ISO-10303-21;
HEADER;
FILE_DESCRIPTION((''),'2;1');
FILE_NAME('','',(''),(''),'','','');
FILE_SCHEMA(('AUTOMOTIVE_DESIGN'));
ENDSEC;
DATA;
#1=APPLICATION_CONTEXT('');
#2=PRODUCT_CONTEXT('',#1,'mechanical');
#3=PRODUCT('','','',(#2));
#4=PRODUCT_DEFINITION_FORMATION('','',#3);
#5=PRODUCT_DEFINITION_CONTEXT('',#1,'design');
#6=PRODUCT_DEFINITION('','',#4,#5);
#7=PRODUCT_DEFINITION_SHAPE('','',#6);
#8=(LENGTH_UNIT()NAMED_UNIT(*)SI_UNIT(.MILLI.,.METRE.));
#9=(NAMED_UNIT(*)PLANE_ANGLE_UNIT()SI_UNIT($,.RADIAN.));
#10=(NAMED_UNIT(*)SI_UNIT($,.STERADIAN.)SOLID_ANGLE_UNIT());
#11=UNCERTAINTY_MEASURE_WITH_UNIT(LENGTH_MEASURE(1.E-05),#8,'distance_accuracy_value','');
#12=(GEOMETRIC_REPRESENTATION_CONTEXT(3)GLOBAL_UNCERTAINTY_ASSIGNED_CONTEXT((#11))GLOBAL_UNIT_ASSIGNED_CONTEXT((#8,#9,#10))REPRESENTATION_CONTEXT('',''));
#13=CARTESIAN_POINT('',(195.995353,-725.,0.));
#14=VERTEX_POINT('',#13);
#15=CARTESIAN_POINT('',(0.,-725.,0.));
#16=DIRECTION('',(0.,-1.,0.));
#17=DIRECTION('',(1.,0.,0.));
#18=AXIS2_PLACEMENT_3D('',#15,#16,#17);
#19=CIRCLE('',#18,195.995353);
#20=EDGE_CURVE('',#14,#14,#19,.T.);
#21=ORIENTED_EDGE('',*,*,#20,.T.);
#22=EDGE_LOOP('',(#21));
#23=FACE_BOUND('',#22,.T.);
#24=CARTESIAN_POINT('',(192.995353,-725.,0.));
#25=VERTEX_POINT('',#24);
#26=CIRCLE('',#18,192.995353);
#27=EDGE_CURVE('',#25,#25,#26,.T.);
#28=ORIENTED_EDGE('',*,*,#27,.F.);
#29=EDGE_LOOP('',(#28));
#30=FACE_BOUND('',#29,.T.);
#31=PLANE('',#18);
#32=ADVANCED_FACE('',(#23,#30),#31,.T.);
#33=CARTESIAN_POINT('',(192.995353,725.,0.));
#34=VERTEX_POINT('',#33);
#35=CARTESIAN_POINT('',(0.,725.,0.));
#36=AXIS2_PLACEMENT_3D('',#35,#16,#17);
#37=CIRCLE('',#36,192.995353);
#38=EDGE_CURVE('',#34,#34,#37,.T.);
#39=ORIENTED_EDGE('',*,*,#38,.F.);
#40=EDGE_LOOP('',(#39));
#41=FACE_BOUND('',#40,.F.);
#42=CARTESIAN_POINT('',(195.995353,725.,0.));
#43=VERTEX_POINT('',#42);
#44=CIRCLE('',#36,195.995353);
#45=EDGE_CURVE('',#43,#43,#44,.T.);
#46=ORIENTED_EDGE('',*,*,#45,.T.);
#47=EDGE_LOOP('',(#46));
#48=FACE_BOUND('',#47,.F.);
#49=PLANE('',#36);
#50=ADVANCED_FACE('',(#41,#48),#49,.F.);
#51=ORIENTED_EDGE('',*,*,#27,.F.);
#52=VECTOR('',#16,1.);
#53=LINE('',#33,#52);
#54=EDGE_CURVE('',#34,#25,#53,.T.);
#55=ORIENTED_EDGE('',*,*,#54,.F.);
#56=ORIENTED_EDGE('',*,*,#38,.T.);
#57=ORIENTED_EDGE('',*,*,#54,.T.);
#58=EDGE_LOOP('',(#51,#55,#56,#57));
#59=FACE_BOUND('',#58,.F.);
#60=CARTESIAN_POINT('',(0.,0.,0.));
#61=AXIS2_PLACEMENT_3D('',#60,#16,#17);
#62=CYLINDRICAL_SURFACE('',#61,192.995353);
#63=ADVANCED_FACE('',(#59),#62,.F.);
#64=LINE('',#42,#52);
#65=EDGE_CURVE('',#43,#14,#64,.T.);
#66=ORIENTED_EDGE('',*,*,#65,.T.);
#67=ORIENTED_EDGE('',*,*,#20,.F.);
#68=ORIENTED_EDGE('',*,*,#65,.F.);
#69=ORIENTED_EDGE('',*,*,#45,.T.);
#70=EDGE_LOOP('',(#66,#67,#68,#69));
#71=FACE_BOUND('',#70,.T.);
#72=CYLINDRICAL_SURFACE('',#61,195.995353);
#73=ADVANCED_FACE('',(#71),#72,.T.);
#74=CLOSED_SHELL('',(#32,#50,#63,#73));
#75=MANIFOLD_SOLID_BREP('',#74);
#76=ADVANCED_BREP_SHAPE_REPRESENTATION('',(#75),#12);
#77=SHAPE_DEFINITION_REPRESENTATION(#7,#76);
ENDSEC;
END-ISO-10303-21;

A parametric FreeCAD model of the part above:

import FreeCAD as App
import Part
import Sketcher

V = App.Vector


def faces_at(feature, points):
    """Names of the faces that lie closest to the given points."""
    faces = feature.Shape.Faces
    near = lambda p: min(range(len(faces)), key=lambda i: faces[i].distToShape(Part.Vertex(*p))[0])
    return sorted({f"Face{near(p) + 1}" for p in points})

doc = App.newDocument("Part")
params = doc.addObject("Spreadsheet::Sheet", "Params")
for row, (alias, value) in enumerate([
    ("pad1_length", "1450 mm"),
    ("thickness_wall", "3 mm"),
], start=1):
    params.set(f"A{row}", alias)
    params.set(f"B{row}", "=" + value)
    params.setAlias(f"B{row}", alias)

body = doc.addObject("PartDesign::Body", "Body")

sketch1 = doc.addObject("Sketcher::SketchObject", "Sketch")
body.addObject(sketch1)
sketch1.AttachmentSupport = (doc.XZ_Plane, [""])
sketch1.MapMode = "FlatFace"
sketch1.addGeometry(Part.Circle(V(0, 0, 0), V(0, 0, 1), 192.995353), False)
sketch1.addConstraint([
    Sketcher.Constraint("Coincident", 0, 3, -1, 1),
    Sketcher.Constraint("Diameter", 0, 385.990706),
])
pad1 = doc.addObject("PartDesign::Pad", "Pad")
body.addObject(pad1)
pad1.Profile = sketch1
pad1.setExpression("Length", "Params.pad1_length")
pad1.Midplane = True
doc.recompute()

thickness = doc.addObject("PartDesign::Thickness", "Thickness")
body.addObject(thickness)
thickness.Base = (pad1, faces_at(pad1, [(0, -725, 0), (0, 725, 0)]))
thickness.setExpression("Value", "Params.thickness_wall")
thickness.Reversed = False
thickness.Join = "Arc"

doc.recompute()
